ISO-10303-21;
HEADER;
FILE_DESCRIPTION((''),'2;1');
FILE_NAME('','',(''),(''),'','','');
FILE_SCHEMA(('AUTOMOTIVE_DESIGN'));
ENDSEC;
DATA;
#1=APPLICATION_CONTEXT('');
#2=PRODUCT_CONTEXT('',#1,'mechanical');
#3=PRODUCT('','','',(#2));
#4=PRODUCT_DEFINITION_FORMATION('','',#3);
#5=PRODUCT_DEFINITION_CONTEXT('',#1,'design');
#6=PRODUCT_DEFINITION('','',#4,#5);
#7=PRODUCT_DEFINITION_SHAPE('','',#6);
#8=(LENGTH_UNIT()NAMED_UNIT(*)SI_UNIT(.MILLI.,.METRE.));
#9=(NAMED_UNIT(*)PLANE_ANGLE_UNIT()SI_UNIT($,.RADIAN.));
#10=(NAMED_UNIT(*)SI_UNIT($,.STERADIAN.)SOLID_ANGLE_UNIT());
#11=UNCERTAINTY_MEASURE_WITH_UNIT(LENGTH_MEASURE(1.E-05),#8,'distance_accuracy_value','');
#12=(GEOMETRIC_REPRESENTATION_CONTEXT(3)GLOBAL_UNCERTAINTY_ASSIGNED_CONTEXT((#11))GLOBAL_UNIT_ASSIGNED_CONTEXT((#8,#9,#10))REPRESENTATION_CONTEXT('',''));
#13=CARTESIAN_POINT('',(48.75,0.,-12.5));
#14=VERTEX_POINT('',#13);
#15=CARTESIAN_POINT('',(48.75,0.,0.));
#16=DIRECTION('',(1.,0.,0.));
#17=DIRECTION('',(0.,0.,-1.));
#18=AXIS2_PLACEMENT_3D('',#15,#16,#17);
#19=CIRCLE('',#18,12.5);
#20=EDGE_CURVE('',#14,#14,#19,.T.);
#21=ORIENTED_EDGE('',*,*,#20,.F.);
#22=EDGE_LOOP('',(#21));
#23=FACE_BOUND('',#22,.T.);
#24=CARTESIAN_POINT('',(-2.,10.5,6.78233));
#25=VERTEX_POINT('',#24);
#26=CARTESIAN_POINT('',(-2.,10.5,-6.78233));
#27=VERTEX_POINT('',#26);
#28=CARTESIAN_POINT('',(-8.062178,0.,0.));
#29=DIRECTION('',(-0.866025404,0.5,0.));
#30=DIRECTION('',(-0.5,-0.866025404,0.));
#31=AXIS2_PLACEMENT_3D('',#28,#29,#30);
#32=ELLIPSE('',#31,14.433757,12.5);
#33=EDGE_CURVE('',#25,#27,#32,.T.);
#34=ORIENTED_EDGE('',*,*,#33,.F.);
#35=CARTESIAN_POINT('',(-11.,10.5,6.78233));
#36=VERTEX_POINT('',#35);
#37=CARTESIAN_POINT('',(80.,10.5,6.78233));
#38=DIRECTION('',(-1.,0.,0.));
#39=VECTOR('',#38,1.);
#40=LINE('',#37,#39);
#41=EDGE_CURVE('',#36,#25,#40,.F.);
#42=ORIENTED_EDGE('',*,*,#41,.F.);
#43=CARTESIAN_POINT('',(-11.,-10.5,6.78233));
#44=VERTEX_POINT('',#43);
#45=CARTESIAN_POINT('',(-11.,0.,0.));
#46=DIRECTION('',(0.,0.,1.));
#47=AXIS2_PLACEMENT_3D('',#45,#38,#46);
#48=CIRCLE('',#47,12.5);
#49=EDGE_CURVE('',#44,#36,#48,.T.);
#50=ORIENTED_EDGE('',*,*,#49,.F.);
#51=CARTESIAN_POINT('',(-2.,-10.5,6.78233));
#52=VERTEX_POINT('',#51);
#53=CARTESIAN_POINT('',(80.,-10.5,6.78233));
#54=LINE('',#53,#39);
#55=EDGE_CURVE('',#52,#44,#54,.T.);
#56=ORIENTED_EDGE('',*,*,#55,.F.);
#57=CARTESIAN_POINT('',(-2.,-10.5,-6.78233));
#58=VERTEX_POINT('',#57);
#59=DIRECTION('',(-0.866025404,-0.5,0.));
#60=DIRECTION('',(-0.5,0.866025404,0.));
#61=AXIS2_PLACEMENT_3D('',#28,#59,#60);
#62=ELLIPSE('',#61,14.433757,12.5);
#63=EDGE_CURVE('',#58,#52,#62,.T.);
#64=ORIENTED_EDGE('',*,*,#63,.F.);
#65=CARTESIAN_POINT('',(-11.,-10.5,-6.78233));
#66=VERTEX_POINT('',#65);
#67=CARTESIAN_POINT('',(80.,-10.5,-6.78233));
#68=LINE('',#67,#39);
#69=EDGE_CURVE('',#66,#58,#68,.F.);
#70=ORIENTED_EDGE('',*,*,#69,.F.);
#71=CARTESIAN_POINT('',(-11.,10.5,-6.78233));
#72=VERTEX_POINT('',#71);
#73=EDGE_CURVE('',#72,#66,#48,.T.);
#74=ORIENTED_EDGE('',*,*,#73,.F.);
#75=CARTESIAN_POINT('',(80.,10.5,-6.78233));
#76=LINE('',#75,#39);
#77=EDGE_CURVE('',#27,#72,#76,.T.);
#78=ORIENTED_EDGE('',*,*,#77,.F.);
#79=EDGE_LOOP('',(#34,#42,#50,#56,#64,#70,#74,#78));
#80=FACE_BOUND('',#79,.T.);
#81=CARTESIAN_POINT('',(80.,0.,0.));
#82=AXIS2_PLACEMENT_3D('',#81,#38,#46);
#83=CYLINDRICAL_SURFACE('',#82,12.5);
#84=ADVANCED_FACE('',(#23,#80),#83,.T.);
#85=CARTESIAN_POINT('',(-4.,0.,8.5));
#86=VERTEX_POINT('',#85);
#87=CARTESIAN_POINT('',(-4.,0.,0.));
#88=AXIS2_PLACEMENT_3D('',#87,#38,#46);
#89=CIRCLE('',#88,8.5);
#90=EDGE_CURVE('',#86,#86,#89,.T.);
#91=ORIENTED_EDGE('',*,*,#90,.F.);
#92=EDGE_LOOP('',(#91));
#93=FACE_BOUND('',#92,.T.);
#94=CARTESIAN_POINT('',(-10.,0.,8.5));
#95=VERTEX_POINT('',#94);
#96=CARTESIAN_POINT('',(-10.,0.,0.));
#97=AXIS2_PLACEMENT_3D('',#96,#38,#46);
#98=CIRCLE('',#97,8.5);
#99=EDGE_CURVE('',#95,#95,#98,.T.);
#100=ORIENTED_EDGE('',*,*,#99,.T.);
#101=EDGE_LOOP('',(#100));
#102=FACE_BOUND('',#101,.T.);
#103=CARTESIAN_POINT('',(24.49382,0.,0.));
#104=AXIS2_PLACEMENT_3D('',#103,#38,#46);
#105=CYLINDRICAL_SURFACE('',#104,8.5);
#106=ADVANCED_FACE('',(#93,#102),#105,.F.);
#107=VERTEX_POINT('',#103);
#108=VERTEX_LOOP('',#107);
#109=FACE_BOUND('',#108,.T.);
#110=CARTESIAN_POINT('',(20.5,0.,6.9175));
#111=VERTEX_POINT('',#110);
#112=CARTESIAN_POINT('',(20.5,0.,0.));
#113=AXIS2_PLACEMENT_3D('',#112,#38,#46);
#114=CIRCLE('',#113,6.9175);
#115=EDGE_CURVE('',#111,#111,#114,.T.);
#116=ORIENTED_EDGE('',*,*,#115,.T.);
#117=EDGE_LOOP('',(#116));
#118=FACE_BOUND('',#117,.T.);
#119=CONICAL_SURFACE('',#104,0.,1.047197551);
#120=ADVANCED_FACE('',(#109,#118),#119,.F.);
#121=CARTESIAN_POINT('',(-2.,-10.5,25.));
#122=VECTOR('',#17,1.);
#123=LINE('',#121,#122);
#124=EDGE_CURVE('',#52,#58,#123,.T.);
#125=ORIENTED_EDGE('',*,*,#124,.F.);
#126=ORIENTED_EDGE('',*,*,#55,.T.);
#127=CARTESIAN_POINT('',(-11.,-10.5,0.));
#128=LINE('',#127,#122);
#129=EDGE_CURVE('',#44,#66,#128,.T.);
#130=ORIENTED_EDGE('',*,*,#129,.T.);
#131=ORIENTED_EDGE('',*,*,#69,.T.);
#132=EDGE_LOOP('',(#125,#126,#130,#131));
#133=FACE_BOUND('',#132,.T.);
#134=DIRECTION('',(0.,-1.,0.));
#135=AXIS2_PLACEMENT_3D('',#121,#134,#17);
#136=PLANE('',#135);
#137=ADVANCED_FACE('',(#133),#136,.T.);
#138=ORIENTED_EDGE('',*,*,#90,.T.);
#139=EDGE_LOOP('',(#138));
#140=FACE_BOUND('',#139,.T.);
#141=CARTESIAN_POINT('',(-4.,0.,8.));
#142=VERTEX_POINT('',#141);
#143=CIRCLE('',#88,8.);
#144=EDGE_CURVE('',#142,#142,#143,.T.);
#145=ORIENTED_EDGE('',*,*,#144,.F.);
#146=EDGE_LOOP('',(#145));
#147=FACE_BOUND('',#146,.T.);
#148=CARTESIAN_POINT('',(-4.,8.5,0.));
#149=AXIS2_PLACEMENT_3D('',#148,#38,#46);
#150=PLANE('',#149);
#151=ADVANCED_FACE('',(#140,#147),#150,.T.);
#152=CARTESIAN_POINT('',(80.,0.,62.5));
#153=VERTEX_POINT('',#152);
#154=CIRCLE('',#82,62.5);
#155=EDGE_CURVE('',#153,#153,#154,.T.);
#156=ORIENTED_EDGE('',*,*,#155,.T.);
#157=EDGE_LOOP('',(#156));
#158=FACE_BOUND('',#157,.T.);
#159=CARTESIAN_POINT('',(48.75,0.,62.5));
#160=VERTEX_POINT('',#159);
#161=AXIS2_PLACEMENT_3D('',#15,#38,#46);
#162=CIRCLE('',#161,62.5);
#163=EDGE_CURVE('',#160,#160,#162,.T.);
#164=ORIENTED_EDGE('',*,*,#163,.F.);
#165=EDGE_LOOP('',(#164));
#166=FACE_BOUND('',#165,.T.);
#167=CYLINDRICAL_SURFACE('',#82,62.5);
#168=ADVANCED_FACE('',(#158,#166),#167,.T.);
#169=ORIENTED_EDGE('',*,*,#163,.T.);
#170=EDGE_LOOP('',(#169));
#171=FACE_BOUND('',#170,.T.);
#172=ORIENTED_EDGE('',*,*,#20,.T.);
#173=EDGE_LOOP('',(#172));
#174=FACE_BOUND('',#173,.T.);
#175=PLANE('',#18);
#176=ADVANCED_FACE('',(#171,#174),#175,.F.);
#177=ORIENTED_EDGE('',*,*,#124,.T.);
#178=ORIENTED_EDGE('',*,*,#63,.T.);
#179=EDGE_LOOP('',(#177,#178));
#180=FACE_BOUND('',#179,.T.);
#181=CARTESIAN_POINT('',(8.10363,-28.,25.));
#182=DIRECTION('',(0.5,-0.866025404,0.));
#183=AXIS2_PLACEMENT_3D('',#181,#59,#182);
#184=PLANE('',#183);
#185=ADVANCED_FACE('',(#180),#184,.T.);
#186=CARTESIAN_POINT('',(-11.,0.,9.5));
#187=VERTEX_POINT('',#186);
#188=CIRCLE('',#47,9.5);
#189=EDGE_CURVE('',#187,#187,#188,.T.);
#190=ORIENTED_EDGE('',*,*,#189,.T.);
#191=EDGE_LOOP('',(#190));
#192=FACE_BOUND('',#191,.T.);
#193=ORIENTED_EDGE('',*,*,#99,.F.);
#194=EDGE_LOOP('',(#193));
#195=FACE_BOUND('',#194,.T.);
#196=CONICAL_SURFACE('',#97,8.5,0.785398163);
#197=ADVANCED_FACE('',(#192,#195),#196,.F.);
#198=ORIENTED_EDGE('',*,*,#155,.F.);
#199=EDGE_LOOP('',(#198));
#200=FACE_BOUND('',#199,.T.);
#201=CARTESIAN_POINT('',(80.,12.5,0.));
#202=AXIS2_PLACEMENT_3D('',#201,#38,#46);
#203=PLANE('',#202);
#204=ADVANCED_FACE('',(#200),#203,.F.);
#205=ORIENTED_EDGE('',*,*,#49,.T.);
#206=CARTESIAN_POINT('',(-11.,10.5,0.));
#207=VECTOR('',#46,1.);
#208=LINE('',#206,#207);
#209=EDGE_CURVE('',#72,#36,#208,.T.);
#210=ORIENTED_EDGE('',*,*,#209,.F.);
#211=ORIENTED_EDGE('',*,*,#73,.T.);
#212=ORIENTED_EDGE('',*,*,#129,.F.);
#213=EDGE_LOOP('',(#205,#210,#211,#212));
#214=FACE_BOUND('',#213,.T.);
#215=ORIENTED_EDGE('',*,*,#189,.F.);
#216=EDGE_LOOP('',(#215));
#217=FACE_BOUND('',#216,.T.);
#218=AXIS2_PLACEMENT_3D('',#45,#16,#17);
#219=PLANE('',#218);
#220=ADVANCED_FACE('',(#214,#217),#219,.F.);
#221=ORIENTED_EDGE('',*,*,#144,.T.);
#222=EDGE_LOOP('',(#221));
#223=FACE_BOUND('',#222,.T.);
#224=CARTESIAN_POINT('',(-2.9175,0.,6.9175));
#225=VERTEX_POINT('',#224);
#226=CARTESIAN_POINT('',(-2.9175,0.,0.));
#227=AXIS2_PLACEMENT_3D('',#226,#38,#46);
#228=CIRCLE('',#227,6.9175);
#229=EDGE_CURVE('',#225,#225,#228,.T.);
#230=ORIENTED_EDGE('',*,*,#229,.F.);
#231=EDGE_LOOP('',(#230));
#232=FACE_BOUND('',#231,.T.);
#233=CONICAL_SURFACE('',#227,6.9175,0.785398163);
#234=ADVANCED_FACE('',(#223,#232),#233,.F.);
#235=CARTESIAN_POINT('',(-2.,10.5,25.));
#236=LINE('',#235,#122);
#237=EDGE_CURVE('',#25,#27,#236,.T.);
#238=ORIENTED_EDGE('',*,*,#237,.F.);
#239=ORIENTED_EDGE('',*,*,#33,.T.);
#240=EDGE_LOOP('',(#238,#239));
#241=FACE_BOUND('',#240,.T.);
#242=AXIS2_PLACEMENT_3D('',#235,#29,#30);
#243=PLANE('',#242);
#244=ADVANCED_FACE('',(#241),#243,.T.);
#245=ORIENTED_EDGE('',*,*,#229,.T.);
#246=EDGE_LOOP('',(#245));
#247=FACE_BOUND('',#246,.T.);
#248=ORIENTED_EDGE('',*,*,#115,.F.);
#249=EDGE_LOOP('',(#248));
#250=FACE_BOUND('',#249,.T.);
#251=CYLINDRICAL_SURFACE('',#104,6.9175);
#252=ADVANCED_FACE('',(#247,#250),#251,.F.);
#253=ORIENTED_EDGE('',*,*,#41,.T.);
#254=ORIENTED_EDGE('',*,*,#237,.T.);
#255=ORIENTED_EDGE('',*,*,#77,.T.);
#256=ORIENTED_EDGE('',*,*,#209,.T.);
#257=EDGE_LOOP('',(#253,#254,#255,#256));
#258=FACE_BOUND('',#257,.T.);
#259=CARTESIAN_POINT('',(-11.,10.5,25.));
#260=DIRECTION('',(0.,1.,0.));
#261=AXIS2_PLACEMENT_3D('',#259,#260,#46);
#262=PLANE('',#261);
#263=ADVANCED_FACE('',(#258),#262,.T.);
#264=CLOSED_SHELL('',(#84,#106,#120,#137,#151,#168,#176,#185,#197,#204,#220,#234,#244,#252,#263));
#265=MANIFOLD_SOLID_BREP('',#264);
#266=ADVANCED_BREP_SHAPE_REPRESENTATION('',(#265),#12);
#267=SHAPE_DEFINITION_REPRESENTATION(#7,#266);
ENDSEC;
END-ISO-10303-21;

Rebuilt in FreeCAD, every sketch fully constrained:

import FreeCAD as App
import Part
import Sketcher

V = App.Vector
Q = App.Units.Quantity

doc = App.newDocument("Part")
body = doc.addObject("PartDesign::Body", "Body")

sketch1 = body.newObject("Sketcher::SketchObject", "Sketch")
sketch1.AttachmentSupport = (doc.getObject("XY_Plane"), [""])
sketch1.MapMode = "FlatFace"
sketch1.addGeometry([
    Part.LineSegment(V(-11, 12, 0), V(-11, 0, 0)),
    Part.LineSegment(V(-11, 0, 0), V(80, 0, 0)),
    Part.LineSegment(V(80, 0, 0), V(80, 12, 0)),
    Part.LineSegment(V(80, 12, 0), V(-11, 12, 0)),
], False)
sketch1.addConstraint([
    Sketcher.Constraint("Coincident", 0, 2, 1, 1),
    Sketcher.Constraint("Coincident", 1, 2, 2, 1),
    Sketcher.Constraint("Coincident", 2, 2, 3, 1),
    Sketcher.Constraint("Coincident", 3, 2, 0, 1),
    Sketcher.Constraint("Vertical", 0),
    Sketcher.Constraint("Horizontal", 1),
    Sketcher.Constraint("Vertical", 2),
    Sketcher.Constraint("Horizontal", 3),
    Sketcher.Constraint("PointOnObject", 0, 2, -1),
    Sketcher.Constraint("DistanceX", 1, 1, 1, 2, Q("91 mm")),
    Sketcher.Constraint("DistanceY", 0, 2, 0, 1, Q("12.5 mm")),
    Sketcher.Constraint("DistanceX", 0, 2, -1, 1, Q("11 mm")),
])
revolution = body.newObject("PartDesign::Revolution", "Revolution")
revolution.Profile = sketch1
revolution.ReferenceAxis = (sketch1, ["H_Axis"])
revolution.Angle = 360

sketch2 = body.newObject("Sketcher::SketchObject", "Sketch001")
sketch2.AttachmentSupport = (doc.getObject("XY_Plane"), [""])
sketch2.MapMode = "FlatFace"
sketch2.addGeometry([
    Part.LineSegment(V(49, 62, 0), V(49, 0, 0)),
    Part.LineSegment(V(49, 0, 0), V(80, 0, 0)),
    Part.LineSegment(V(80, 0, 0), V(80, 62, 0)),
    Part.LineSegment(V(80, 62, 0), V(49, 62, 0)),
], False)
sketch2.addConstraint([
    Sketcher.Constraint("Coincident", 0, 2, 1, 1),
    Sketcher.Constraint("Coincident", 1, 2, 2, 1),
    Sketcher.Constraint("Coincident", 2, 2, 3, 1),
    Sketcher.Constraint("Coincident", 3, 2, 0, 1),
    Sketcher.Constraint("Vertical", 0),
    Sketcher.Constraint("Horizontal", 1),
    Sketcher.Constraint("Vertical", 2),
    Sketcher.Constraint("Horizontal", 3),
    Sketcher.Constraint("PointOnObject", 0, 2, -1),
    Sketcher.Constraint("DistanceY", 0, 2, 0, 1, Q("62.5 mm")),
    Sketcher.Constraint("DistanceX", -1, 1, 1, 2, Q("80 mm")),
    Sketcher.Constraint("DistanceX", 1, 1, 1, 2, Q("31.25 mm")),
])
revolution2 = body.newObject("PartDesign::Revolution", "Revolution001")
revolution2.Profile = sketch2
revolution2.ReferenceAxis = (sketch2, ["H_Axis"])
revolution2.Angle = 360

sketch3 = body.newObject("Sketcher::SketchObject", "Sketch002")
sketch3.AttachmentSupport = (doc.getObject("XY_Plane"), [""])
sketch3.MapMode = "FlatFace"
sketch3.addGeometry([
    Part.LineSegment(V(-67, -28, 0), V(8, -28, 0)),
    Part.LineSegment(V(8, -28, 0), V(-2, -10, 0)),
    Part.LineSegment(V(-2, -10, 0), V(-11, -10, 0)),
    Part.LineSegment(V(-11, -10, 0), V(-11, -16, 0)),
    Part.LineSegment(V(-11, -16, 0), V(-56, -16, 0)),
    Part.LineSegment(V(-56, -16, 0), V(-56, 16, 0)),
    Part.LineSegment(V(-56, 16, 0), V(-11, 16, 0)),
    Part.LineSegment(V(-11, 16, 0), V(-11, 10, 0)),
    Part.LineSegment(V(-11, 10, 0), V(-2, 10, 0)),
    Part.LineSegment(V(-2, 10, 0), V(8, 28, 0)),
    Part.LineSegment(V(8, 28, 0), V(-67, 28, 0)),
    Part.LineSegment(V(-67, 28, 0), V(-67, -28, 0)),
], False)
sketch3.addConstraint([
    Sketcher.Constraint("Coincident", 0, 2, 1, 1),
    Sketcher.Constraint("Coincident", 1, 2, 2, 1),
    Sketcher.Constraint("Coincident", 2, 2, 3, 1),
    Sketcher.Constraint("Coincident", 3, 2, 4, 1),
    Sketcher.Constraint("Coincident", 4, 2, 5, 1),
    Sketcher.Constraint("Coincident", 5, 2, 6, 1),
    Sketcher.Constraint("Coincident", 6, 2, 7, 1),
    Sketcher.Constraint("Coincident", 7, 2, 8, 1),
    Sketcher.Constraint("Coincident", 8, 2, 9, 1),
    Sketcher.Constraint("Coincident", 9, 2, 10, 1),
    Sketcher.Constraint("Coincident", 10, 2, 11, 1),
    Sketcher.Constraint("Coincident", 11, 2, 0, 1),
    Sketcher.Constraint("Horizontal", 0),
    Sketcher.Constraint("Horizontal", 2),
    Sketcher.Constraint("Vertical", 3),
    Sketcher.Constraint("Horizontal", 4),
    Sketcher.Constraint("Vertical", 5),
    Sketcher.Constraint("Horizontal", 6),
    Sketcher.Constraint("Vertical", 7),
    Sketcher.Constraint("Horizontal", 8),
    Sketcher.Constraint("Horizontal", 10),
    Sketcher.Constraint("Vertical", 11),
    Sketcher.Constraint("Symmetric", 3, 2, 6, 2, -1),
    Sketcher.Constraint("Symmetric", 1, 2, 8, 2, -1),
    Sketcher.Constraint("Symmetric", 0, 2, 9, 2, -1),
    Sketcher.Constraint("DistanceX", 2, 2, 2, 1, Q("9 mm")),
    Sketcher.Constraint("DistanceX", 4, 2, 4, 1, Q("45 mm")),
    Sketcher.Constraint("DistanceY", 3, 2, 3, 1, Q("5 mm")),
    Sketcher.Constraint("DistanceY", 5, 1, 5, 2, Q("31 mm")),
    Sketcher.Constraint("DistanceY", 11, 2, 11, 1, Q("56 mm")),
    Sketcher.Constraint("Angle", 1, Q("120 deg")),
    Sketcher.Constraint("DistanceX", 1, 2, -1, 1, Q("2 mm")),
    Sketcher.Constraint("DistanceX", 10, 2, -1, 1, Q("67 mm")),
])
pocket1 = body.newObject("PartDesign::Pocket", "Pocket")
pocket1.Profile = sketch3
pocket1.Type = "ThroughAll"
pocket1.Midplane = True

sketch4 = body.newObject("Sketcher::SketchObject", "Sketch003")
sketch4.AttachmentSupport = (doc.getObject("XY_Plane"), [""])
sketch4.MapMode = "FlatFace"
sketch4.addGeometry([
    Part.LineSegment(V(-11, 9.5, 0), V(-11, 0, 0)),
    Part.LineSegment(V(-11, 0, 0), V(24.5, 0, 0)),
    Part.LineSegment(V(24.5, 0, 0), V(20.5, 6.9, 0)),
    Part.LineSegment(V(20.5, 6.9, 0), V(-2.9, 6.9, 0)),
    Part.LineSegment(V(-2.9, 6.9, 0), V(-4, 8, 0)),
    Part.LineSegment(V(-4, 8, 0), V(-4, 8.5, 0)),
    Part.LineSegment(V(-4, 8.5, 0), V(-10, 8.5, 0)),
    Part.LineSegment(V(-10, 8.5, 0), V(-11, 9.5, 0)),
], False)
sketch4.addConstraint([
    Sketcher.Constraint("Coincident", 0, 2, 1, 1),
    Sketcher.Constraint("Coincident", 1, 2, 2, 1),
    Sketcher.Constraint("Coincident", 2, 2, 3, 1),
    Sketcher.Constraint("Coincident", 3, 2, 4, 1),
    Sketcher.Constraint("Coincident", 4, 2, 5, 1),
    Sketcher.Constraint("Coincident", 5, 2, 6, 1),
    Sketcher.Constraint("Coincident", 6, 2, 7, 1),
    Sketcher.Constraint("Coincident", 7, 2, 0, 1),
    Sketcher.Constraint("Vertical", 0),
    Sketcher.Constraint("Horizontal", 1),
    Sketcher.Constraint("Horizontal", 3),
    Sketcher.Constraint("Vertical", 5),
    Sketcher.Constraint("Horizontal", 6),
    Sketcher.Constraint("PointOnObject", 0, 2, -1),
    Sketcher.Constraint("Parallel", 4, 7),
    Sketcher.Constraint("DistanceX", 6, 2, 6, 1, Q("6 mm")),
    Sketcher.Constraint("Angle", 2, Q("120 deg")),
    Sketcher.Constraint("Angle", 4, Q("135 deg")),
    Sketcher.Constraint("DistanceY", 0, 2, 0, 1, Q("9.5 mm")),
    Sketcher.Constraint("DistanceY", 5, 1, 5, 2, Q("0.5 mm")),
    Sketcher.Constraint("DistanceX", 0, 2, -1, 1, Q("11 mm")),
    Sketcher.Constraint("DistanceX", 4, 2, -1, 1, Q("4 mm")),
    Sketcher.Constraint("DistanceX", -1, 1, 2, 2, Q("20.5 mm")),
    Sketcher.Constraint("DistanceX", 3, 2, 3, 1, Q("23.4175 mm")),
])
groove = body.newObject("PartDesign::Groove", "Groove")
groove.Profile = sketch4
groove.ReferenceAxis = (sketch4, ["H_Axis"])
groove.Angle = 360

doc.recompute()
